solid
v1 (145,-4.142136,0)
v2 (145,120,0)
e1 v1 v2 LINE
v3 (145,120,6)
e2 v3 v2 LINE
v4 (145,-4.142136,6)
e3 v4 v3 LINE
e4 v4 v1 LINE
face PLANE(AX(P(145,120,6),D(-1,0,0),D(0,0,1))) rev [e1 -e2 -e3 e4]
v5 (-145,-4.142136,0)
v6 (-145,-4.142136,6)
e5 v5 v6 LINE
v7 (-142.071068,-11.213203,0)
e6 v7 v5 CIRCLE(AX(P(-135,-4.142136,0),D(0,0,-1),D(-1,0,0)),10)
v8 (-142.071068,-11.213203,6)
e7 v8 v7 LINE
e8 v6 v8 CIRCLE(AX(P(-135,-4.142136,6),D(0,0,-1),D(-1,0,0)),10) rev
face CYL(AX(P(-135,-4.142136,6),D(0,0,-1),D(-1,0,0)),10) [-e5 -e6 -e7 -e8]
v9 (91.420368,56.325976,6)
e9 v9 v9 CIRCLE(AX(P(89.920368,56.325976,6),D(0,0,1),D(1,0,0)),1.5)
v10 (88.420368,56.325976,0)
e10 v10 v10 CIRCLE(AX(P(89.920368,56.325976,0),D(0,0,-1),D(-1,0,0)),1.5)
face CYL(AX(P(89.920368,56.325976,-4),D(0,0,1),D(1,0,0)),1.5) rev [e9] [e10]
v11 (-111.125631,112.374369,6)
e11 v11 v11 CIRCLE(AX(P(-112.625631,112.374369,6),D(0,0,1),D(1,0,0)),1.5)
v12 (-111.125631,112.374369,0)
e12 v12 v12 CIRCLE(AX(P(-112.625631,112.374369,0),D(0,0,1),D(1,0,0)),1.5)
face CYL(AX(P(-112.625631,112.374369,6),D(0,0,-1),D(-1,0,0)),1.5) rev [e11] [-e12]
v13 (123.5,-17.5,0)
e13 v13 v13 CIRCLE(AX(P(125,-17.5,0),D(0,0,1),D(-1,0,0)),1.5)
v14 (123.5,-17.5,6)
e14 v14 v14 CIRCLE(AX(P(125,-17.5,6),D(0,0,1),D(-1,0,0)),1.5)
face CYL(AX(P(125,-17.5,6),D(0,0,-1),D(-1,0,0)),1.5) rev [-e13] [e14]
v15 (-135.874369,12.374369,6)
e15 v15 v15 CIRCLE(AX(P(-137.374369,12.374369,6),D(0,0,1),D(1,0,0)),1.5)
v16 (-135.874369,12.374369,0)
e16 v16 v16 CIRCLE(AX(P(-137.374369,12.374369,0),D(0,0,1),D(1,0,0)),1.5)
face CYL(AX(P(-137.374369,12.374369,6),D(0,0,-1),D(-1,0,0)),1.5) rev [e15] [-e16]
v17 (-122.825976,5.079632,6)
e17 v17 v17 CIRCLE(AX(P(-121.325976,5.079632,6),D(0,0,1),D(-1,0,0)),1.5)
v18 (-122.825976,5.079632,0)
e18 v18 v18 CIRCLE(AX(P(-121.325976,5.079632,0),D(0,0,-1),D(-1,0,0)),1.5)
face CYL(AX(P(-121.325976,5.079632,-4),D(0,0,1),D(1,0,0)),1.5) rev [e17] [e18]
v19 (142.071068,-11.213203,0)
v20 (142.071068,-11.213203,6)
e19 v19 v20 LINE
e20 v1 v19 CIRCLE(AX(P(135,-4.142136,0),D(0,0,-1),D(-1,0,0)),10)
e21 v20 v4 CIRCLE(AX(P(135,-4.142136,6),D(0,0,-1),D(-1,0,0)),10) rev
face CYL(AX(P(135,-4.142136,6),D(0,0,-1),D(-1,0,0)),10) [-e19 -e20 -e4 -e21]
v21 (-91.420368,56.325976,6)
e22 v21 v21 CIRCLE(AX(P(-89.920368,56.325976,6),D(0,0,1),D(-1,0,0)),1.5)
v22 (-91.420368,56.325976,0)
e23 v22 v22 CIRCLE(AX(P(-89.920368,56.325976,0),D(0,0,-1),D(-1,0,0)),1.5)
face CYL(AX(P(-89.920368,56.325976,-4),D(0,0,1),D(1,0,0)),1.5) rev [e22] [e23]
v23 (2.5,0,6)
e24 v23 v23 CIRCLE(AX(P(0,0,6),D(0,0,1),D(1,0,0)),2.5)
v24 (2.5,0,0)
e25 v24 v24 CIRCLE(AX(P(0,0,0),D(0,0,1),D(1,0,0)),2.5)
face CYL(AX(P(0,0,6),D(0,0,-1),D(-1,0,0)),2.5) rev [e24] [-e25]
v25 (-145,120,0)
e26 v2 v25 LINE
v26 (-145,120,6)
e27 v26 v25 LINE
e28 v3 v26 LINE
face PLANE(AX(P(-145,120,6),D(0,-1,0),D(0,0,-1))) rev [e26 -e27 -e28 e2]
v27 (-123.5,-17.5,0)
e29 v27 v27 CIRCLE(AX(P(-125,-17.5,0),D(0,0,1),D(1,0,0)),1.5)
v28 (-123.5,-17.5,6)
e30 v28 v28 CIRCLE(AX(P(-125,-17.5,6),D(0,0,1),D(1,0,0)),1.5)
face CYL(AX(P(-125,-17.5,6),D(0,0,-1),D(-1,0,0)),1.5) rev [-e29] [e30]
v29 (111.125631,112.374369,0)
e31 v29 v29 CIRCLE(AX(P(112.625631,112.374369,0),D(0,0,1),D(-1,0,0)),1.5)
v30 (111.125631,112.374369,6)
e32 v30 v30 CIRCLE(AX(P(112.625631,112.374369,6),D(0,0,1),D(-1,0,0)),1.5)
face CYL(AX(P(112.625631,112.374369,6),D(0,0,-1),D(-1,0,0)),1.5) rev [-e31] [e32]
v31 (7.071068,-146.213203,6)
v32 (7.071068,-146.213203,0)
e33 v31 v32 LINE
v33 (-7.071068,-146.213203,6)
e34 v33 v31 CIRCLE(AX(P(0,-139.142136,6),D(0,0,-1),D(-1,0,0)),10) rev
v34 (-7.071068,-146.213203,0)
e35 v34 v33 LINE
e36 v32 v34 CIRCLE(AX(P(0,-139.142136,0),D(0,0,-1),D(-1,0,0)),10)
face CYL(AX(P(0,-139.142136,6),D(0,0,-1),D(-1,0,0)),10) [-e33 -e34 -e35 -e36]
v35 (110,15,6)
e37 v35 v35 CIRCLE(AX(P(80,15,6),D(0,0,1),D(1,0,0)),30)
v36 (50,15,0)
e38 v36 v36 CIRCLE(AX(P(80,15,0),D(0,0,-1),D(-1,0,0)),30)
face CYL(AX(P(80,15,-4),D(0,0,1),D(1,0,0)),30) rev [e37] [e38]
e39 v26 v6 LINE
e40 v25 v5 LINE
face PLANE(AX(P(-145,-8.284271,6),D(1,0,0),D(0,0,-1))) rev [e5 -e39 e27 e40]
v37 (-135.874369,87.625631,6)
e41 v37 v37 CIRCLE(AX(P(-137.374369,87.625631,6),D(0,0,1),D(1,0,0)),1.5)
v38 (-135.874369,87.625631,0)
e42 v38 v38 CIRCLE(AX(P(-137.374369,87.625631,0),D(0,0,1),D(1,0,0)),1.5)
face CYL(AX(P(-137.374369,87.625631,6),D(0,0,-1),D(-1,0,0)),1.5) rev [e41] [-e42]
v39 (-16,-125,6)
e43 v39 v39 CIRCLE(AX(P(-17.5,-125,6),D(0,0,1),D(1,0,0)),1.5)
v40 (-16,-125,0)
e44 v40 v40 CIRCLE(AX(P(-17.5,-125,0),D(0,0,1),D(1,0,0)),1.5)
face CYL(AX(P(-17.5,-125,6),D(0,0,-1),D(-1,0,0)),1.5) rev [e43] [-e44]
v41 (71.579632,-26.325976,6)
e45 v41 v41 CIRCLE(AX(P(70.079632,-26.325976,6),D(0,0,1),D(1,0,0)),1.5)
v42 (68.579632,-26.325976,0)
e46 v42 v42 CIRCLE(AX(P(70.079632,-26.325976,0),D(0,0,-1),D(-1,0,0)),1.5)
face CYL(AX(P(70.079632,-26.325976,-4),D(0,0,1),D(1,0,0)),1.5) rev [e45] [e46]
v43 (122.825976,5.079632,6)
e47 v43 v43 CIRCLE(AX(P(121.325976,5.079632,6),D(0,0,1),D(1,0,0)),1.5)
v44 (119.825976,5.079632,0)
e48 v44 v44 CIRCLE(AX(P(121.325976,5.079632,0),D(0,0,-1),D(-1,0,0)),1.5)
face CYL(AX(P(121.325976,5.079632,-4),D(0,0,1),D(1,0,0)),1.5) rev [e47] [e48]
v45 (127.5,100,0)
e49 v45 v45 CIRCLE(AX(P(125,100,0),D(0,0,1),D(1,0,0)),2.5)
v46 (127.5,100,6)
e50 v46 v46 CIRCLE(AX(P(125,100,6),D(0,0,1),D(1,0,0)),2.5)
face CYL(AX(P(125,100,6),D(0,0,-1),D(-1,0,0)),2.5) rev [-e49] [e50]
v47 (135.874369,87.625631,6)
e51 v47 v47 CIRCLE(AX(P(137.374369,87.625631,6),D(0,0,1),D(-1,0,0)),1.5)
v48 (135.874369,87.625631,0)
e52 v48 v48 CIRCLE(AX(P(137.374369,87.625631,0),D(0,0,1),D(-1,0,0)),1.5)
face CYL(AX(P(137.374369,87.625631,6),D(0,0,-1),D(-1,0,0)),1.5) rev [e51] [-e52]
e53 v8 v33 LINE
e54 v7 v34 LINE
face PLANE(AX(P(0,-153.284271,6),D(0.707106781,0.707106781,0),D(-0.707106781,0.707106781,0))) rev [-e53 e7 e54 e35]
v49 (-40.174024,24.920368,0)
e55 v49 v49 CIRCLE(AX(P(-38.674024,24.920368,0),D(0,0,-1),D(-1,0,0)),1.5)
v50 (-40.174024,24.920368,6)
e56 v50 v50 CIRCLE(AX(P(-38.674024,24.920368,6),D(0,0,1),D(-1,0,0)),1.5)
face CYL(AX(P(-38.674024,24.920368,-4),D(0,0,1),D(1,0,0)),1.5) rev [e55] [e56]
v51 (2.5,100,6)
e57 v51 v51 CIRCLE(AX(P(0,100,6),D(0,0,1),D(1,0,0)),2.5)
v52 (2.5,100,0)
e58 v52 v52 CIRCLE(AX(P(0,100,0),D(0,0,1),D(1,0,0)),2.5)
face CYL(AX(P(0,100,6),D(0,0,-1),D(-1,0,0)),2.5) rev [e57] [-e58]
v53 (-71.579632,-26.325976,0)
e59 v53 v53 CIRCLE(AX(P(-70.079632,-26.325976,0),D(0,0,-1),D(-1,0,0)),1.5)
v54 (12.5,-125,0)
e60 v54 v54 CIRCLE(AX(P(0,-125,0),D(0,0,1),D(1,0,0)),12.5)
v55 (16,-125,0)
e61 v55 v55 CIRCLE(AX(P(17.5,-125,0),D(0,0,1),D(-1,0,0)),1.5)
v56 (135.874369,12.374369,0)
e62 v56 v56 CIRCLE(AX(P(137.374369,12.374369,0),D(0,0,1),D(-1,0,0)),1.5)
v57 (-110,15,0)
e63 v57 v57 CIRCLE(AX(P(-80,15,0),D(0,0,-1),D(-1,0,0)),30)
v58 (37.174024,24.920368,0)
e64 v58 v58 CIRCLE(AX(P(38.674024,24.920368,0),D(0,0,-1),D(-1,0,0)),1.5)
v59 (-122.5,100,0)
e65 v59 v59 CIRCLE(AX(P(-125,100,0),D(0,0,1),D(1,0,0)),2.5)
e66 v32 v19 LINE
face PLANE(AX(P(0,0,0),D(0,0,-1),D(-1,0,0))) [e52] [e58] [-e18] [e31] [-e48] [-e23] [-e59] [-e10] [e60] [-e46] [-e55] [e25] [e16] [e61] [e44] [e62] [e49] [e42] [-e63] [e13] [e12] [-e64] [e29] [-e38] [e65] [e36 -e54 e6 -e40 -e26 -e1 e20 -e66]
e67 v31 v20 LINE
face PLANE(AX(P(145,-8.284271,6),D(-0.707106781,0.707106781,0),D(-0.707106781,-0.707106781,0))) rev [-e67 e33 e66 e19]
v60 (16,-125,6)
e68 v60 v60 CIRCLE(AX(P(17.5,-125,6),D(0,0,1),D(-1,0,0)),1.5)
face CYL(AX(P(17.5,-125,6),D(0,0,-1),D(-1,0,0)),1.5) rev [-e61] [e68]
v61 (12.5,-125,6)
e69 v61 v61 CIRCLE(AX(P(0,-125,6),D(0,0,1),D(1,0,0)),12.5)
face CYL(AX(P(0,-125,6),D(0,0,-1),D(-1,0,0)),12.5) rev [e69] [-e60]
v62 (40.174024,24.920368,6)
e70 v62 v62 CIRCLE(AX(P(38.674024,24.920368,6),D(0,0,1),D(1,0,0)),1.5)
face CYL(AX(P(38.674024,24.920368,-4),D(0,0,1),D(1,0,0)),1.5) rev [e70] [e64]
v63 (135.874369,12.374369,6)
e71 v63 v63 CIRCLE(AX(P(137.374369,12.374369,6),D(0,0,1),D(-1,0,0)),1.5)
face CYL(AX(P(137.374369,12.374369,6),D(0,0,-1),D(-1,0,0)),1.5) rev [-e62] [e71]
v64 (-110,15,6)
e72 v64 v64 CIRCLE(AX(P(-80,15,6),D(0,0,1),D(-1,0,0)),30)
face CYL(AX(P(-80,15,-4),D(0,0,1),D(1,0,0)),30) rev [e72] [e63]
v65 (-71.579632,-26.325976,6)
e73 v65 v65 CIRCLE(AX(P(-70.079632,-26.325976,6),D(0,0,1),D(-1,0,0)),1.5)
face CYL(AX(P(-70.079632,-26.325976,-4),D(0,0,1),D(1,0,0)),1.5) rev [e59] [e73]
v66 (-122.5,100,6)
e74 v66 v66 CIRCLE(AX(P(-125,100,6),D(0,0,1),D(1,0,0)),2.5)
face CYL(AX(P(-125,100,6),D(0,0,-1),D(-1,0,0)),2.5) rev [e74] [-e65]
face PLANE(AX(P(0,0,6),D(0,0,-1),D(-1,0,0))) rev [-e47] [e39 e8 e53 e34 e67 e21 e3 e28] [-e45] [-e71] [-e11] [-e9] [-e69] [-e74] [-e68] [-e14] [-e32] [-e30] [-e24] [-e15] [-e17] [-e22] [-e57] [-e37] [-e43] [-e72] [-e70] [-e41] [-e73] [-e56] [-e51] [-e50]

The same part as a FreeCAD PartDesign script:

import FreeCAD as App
import Part
import Sketcher
Q = App.Units.Quantity


def edges_at(feature, points):
    """Names of the edges that pass closest to the given points."""
    edges = feature.Shape.Edges
    near = lambda p: min(range(len(edges)), key=lambda i: edges[i].distToShape(Part.Vertex(*p))[0])
    return sorted({f"Edge{near(p) + 1}" for p in points})

doc = App.newDocument("Part")
body = doc.addObject("PartDesign::Body", "Body")

sketch1 = body.newObject("Sketcher::SketchObject", "Sketch")
sketch1.AttachmentSupport = (doc.getObject("XY_Plane"), [""])
sketch1.MapMode = "FlatFace"
sketch1.addGeometry(Part.LineSegment(App.Vector(145, 120, 0), App.Vector(-145, 120, 0)), False)
sketch1.addGeometry(Part.LineSegment(App.Vector(-145, 120, 0), App.Vector(-145, -8.3, 0)), False)
sketch1.addGeometry(Part.LineSegment(App.Vector(-145, -8.3, 0), App.Vector(0, -153.3, 0)), False)
sketch1.addGeometry(Part.LineSegment(App.Vector(0, -153.3, 0), App.Vector(145, -8.3, 0)), False)
sketch1.addGeometry(Part.LineSegment(App.Vector(145, -8.3, 0), App.Vector(145, 120, 0)), False)
sketch1.addGeometry(Part.Circle(App.Vector(17.5, -125, 0), App.Vector(0, 0, 1), 1.5), False)
sketch1.addGeometry(Part.Circle(App.Vector(125, -17.5, 0), App.Vector(0, 0, 1), 1.5), False)
sketch1.addGeometry(Part.Circle(App.Vector(0, -125, 0), App.Vector(0, 0, 1), 12.5), False)
sketch1.addGeometry(Part.Circle(App.Vector(-17.5, -125, 0), App.Vector(0, 0, 1), 1.5), False)
sketch1.addGeometry(Part.Circle(App.Vector(-125, -17.5, 0), App.Vector(0, 0, 1), 1.5), False)
sketch1.addGeometry(Part.Circle(App.Vector(137.4, 12.4, 0), App.Vector(0, 0, 1), 1.5), False)
sketch1.addGeometry(Part.Circle(App.Vector(137.4, 87.6, 0), App.Vector(0, 0, 1), 1.5), False)
sketch1.addGeometry(Part.Circle(App.Vector(125, 100, 0), App.Vector(0, 0, 1), 2.5), False)
sketch1.addGeometry(Part.Circle(App.Vector(112.6, 112.4, 0), App.Vector(0, 0, 1), 1.5), False)
sketch1.addGeometry(Part.Circle(App.Vector(0, 0, 0), App.Vector(0, 0, 1), 2.5), False)
sketch1.addGeometry(Part.Circle(App.Vector(-137.4, 12.4, 0), App.Vector(0, 0, 1), 1.5), False)
sketch1.addGeometry(Part.Circle(App.Vector(0, 100, 0), App.Vector(0, 0, 1), 2.5), False)
sketch1.addGeometry(Part.Circle(App.Vector(-137.4, 87.6, 0), App.Vector(0, 0, 1), 1.5), False)
sketch1.addGeometry(Part.Circle(App.Vector(-112.6, 112.4, 0), App.Vector(0, 0, 1), 1.5), False)
sketch1.addGeometry(Part.Circle(App.Vector(-125, 100, 0), App.Vector(0, 0, 1), 2.5), False)
sketch1.addConstraint(Sketcher.Constraint("Coincident", 0, 2, 1, 1))
sketch1.addConstraint(Sketcher.Constraint("Coincident", 1, 2, 2, 1))
sketch1.addConstraint(Sketcher.Constraint("Coincident", 2, 2, 3, 1))
sketch1.addConstraint(Sketcher.Constraint("Coincident", 3, 2, 4, 1))
sketch1.addConstraint(Sketcher.Constraint("Coincident", 4, 2, 0, 1))
sketch1.addConstraint(Sketcher.Constraint("Horizontal", 0))
sketch1.addConstraint(Sketcher.Constraint("Vertical", 1))
sketch1.addConstraint(Sketcher.Constraint("Vertical", 4))
sketch1.addConstraint(Sketcher.Constraint("Coincident", 14, 3, -1, 1))
sketch1.addConstraint(Sketcher.Constraint("Equal", 5, 6))
sketch1.addConstraint(Sketcher.Constraint("Equal", 6, 8))
sketch1.addConstraint(Sketcher.Constraint("Equal", 8, 9))
sketch1.addConstraint(Sketcher.Constraint("Equal", 9, 10))
sketch1.addConstraint(Sketcher.Constraint("Equal", 10, 11))
sketch1.addConstraint(Sketcher.Constraint("Equal", 11, 13))
sketch1.addConstraint(Sketcher.Constraint("Equal", 12, 14))
sketch1.addConstraint(Sketcher.Constraint("Equal", 13, 15))
sketch1.addConstraint(Sketcher.Constraint("Equal", 14, 16))
sketch1.addConstraint(Sketcher.Constraint("Equal", 15, 17))
sketch1.addConstraint(Sketcher.Constraint("Equal", 17, 18))
sketch1.addConstraint(Sketcher.Constraint("Equal", 16, 19))
sketch1.addConstraint(Sketcher.Constraint("Symmetric", 5, 3, 8, 3, -2))
sketch1.addConstraint(Sketcher.Constraint("Symmetric", 6, 3, 9, 3, -2))
sketch1.addConstraint(Sketcher.Constraint("Symmetric", 10, 3, 15, 3, -2))
sketch1.addConstraint(Sketcher.Constraint("Symmetric", 11, 3, 17, 3, -2))
sketch1.addConstraint(Sketcher.Constraint("Symmetric", 13, 3, 18, 3, -2))
sketch1.addConstraint(Sketcher.Constraint("Symmetric", 12, 3, 19, 3, -2))
sketch1.addConstraint(Sketcher.Constraint("Symmetric", 1, 2, 3, 2, -2))
sketch1.addConstraint(Sketcher.Constraint("PointOnObject", 7, 3, -2))
sketch1.addConstraint(Sketcher.Constraint("PointOnObject", 16, 3, -2))
sketch1.addConstraint(Sketcher.Constraint("PointOnObject", 2, 2, -2))
sketch1.addConstraint(Sketcher.Constraint("Perpendicular", 2, 3))
sketch1.addConstraint(Sketcher.Constraint("Horizontal", 5, 3, 7, 3))
sketch1.addConstraint(Sketcher.Constraint("Horizontal", 12, 3, 16, 3))
sketch1.addConstraint(Sketcher.Constraint("Vertical", 10, 3, 11, 3))
sketch1.addConstraint(Sketcher.Constraint("Vertical", 6, 3, 12, 3))
sketch1.addConstraint(Sketcher.Constraint("Diameter", 5, Q("3 mm")))
sketch1.addConstraint(Sketcher.Constraint("Diameter", 7, Q("25 mm")))
sketch1.addConstraint(Sketcher.Constraint("Diameter", 12, Q("5 mm")))
sketch1.addConstraint(Sketcher.Constraint("DistanceX", 0, 2, 0, 1, Q("290 mm")))
sketch1.addConstraint(Sketcher.Constraint("DistanceY", 5, 3, -1, 1, Q("125 mm")))
sketch1.addConstraint(Sketcher.Constraint("DistanceX", -1, 1, 6, 3, Q("125 mm")))
sketch1.addConstraint(Sketcher.Constraint("DistanceY", -1, 1, 12, 3, Q("100 mm")))
sketch1.addConstraint(Sketcher.Constraint("DistanceY", -1, 1, 0, 2, Q("120 mm")))
sketch1.addConstraint(Sketcher.Constraint("DistanceX", 8, 3, 5, 3, Q("35 mm")))
sketch1.addConstraint(Sketcher.Constraint("DistanceY", 10, 3, 13, 3, Q("100 mm")))
sketch1.addConstraint(Sketcher.Constraint("DistanceY", 6, 3, -1, 1, Q("17.5 mm")))
sketch1.addConstraint(Sketcher.Constraint("DistanceY", 1, 2, 1, 1, Q("128.284271 mm")))
sketch1.addConstraint(Sketcher.Constraint("DistanceX", -1, 1, 10, 3, Q("137.374369 mm")))
sketch1.addConstraint(Sketcher.Constraint("DistanceY", -1, 1, 10, 3, Q("12.374369 mm")))
sketch1.addConstraint(Sketcher.Constraint("DistanceY", -1, 1, 11, 3, Q("87.625631 mm")))
sketch1.addConstraint(Sketcher.Constraint("DistanceX", -1, 1, 13, 3, Q("112.625631 mm")))
pad1 = body.newObject("PartDesign::Pad", "Pad")
pad1.Profile = sketch1
pad1.Length = 6
doc.recompute()

fillet = body.newObject("PartDesign::Fillet", "Fillet")
fillet.Base = (pad1, edges_at(pad1, [(145, -8.284, 3), (0, -153.284, 3), (-145, -8.284, 3)]))
fillet.Radius = 10

sketch2 = body.newObject("Sketcher::SketchObject", "Sketch001")
sketch2.AttachmentSupport = (doc.getObject("XY_Plane"), [""])
sketch2.MapMode = "FlatFace"
sketch2.AttachmentOffset = App.Placement(App.Vector(0, 0, 6), App.Rotation())
sketch2.addGeometry(Part.Circle(App.Vector(38.7, 24.9, 0), App.Vector(0, 0, 1), 1.5), False)
sketch2.addGeometry(Part.Circle(App.Vector(89.9, 56.3, 0), App.Vector(0, 0, 1), 1.5), False)
sketch2.addGeometry(Part.Circle(App.Vector(121.3, 5.1, 0), App.Vector(0, 0, 1), 1.5), False)
sketch2.addGeometry(Part.Circle(App.Vector(70.1, -26.3, 0), App.Vector(0, 0, 1), 1.5), False)
sketch2.addGeometry(Part.Circle(App.Vector(80, 15, 0), App.Vector(0, 0, 1), 30), False)
sketch2.addGeometry(Part.Circle(App.Vector(-38.7, 24.9, 0), App.Vector(0, 0, 1), 1.5), False)
sketch2.addGeometry(Part.Circle(App.Vector(-89.9, 56.3, 0), App.Vector(0, 0, 1), 1.5), False)
sketch2.addGeometry(Part.Circle(App.Vector(-70.1, -26.3, 0), App.Vector(0, 0, 1), 1.5), False)
sketch2.addGeometry(Part.Circle(App.Vector(-121.3, 5.1, 0), App.Vector(0, 0, 1), 1.5), False)
sketch2.addGeometry(Part.Circle(App.Vector(-80, 15, 0), App.Vector(0, 0, 1), 30), False)
sketch2.addConstraint(Sketcher.Constraint("Equal", 0, 1))
sketch2.addConstraint(Sketcher.Constraint("Equal", 1, 2))
sketch2.addConstraint(Sketcher.Constraint("Equal", 2, 3))
sketch2.addConstraint(Sketcher.Constraint("Equal", 3, 5))
sketch2.addConstraint(Sketcher.Constraint("Equal", 5, 6))
sketch2.addConstraint(Sketcher.Constraint("Equal", 6, 7))
sketch2.addConstraint(Sketcher.Constraint("Equal", 7, 8))
sketch2.addConstraint(Sketcher.Constraint("Equal", 4, 9))
sketch2.addConstraint(Sketcher.Constraint("Symmetric", 0, 3, 5, 3, -2))
sketch2.addConstraint(Sketcher.Constraint("Symmetric", 1, 3, 6, 3, -2))
sketch2.addConstraint(Sketcher.Constraint("Symmetric", 3, 3, 7, 3, -2))
sketch2.addConstraint(Sketcher.Constraint("Symmetric", 2, 3, 8, 3, -2))
sketch2.addConstraint(Sketcher.Constraint("Symmetric", 4, 3, 9, 3, -2))
sketch2.addConstraint(Sketcher.Constraint("Diameter", 0, Q("3 mm")))
sketch2.addConstraint(Sketcher.Constraint("Diameter", 4, Q("60 mm")))
sketch2.addConstraint(Sketcher.Constraint("DistanceX", -1, 1, 4, 3, Q("80 mm")))
sketch2.addConstraint(Sketcher.Constraint("DistanceY", -1, 1, 4, 3, Q("15 mm")))
sketch2.addConstraint(Sketcher.Constraint("DistanceX", 5, 3, 2, 3, Q("160 mm")))
sketch2.addConstraint(Sketcher.Constraint("DistanceX", 6, 3, 3, 3, Q("160 mm")))
sketch2.addConstraint(Sketcher.Constraint("DistanceY", -1, 1, 0, 3, Q("24.920368 mm")))
sketch2.addConstraint(Sketcher.Constraint("DistanceX", -1, 1, 1, 3, Q("89.920368 mm")))
sketch2.addConstraint(Sketcher.Constraint("DistanceY", -1, 1, 2, 3, Q("5.079632 mm")))
sketch2.addConstraint(Sketcher.Constraint("DistanceX", -1, 1, 0, 3, Q("38.674024 mm")))
sketch2.addConstraint(Sketcher.Constraint("DistanceY", -1, 1, 1, 3, Q("56.325976 mm")))
sketch2.addConstraint(Sketcher.Constraint("DistanceY", 3, 3, -1, 1, Q("26.325976 mm")))
pocket1 = body.newObject("PartDesign::Pocket", "Pocket")
pocket1.Profile = sketch2
pocket1.Length = 10

doc.recompute()
